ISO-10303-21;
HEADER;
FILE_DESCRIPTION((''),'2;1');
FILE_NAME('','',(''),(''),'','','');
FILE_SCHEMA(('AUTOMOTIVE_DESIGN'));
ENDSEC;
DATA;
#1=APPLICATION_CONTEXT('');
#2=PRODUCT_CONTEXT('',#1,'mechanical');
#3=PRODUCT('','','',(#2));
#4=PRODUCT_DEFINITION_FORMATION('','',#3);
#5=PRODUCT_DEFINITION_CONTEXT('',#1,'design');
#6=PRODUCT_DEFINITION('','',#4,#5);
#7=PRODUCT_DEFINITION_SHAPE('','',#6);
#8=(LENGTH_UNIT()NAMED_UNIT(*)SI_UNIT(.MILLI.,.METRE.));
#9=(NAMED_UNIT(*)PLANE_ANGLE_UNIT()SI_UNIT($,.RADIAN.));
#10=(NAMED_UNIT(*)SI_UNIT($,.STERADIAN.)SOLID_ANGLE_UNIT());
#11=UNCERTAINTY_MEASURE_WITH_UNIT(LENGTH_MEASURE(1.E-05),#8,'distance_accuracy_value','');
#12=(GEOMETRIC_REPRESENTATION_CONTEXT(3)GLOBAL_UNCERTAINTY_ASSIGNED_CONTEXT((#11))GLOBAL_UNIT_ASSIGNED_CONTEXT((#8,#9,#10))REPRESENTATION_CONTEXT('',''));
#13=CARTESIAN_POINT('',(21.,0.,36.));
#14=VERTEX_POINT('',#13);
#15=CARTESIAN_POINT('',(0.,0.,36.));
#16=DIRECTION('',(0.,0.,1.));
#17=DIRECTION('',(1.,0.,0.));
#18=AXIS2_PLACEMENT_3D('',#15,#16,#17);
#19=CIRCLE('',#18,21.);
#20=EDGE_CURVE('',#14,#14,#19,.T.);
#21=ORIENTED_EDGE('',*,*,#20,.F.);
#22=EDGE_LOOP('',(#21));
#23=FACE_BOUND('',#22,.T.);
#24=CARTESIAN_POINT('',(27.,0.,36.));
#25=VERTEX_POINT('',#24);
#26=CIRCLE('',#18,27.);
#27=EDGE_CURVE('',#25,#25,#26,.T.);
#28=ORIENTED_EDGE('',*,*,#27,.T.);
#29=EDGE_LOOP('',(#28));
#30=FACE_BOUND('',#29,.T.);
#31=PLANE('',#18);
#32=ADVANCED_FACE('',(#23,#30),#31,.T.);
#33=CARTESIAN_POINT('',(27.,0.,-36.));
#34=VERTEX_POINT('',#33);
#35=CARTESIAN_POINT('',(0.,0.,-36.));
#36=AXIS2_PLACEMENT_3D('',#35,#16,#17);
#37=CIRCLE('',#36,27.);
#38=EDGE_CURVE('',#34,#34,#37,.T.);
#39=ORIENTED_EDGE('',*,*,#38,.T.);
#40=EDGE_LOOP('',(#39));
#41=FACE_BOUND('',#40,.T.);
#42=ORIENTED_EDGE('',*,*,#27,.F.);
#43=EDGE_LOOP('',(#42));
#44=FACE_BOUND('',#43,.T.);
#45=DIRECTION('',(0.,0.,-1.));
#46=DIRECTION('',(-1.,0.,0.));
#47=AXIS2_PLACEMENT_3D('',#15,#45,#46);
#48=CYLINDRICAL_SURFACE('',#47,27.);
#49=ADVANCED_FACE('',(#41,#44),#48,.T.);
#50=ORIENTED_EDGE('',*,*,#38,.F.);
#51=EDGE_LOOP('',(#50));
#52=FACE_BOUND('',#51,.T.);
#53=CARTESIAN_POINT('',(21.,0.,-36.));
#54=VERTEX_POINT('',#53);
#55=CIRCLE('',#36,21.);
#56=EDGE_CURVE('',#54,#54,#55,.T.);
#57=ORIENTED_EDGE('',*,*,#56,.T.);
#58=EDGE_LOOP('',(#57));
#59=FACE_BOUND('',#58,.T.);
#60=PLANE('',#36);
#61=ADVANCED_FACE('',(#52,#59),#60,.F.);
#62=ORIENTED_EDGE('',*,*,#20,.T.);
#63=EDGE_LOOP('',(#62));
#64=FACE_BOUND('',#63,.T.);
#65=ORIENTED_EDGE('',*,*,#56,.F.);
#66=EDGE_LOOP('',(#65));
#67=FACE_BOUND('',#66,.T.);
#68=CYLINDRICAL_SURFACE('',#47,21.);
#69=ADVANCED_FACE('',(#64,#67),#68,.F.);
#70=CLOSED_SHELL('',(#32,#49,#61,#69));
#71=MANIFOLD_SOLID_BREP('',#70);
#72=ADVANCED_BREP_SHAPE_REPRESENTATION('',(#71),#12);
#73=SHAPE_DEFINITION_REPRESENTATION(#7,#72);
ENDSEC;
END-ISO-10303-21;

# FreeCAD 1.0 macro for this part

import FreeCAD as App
import Part
import Sketcher
Q = App.Units.Quantity

doc = App.newDocument("Part")
body = doc.addObject("PartDesign::Body", "Body")

sketch1 = body.newObject("Sketcher::SketchObject", "Sketch")
sketch1.AttachmentSupport = (doc.getObject("XY_Plane"), [""])
sketch1.MapMode = "FlatFace"
sketch1.addGeometry([
    Part.Circle(App.Vector(0, 0, 0), App.Vector(0, 0, 1), 27),
    Part.Circle(App.Vector(0, 0, 0), App.Vector(0, 0, 1), 21),
], False)
sketch1.addConstraint([
    Sketcher.Constraint("Coincident", 0, 3, -1, 1),
    Sketcher.Constraint("Coincident", 1, 3, -1, 1),
    Sketcher.Constraint("Diameter", 0, Q("54 mm")),
    Sketcher.Constraint("Diameter", 1, Q("42 mm")),
])
pad1 = body.newObject("PartDesign::Pad", "Pad")
pad1.Profile = sketch1
pad1.Length = 72
pad1.Midplane = True

doc.recompute()
